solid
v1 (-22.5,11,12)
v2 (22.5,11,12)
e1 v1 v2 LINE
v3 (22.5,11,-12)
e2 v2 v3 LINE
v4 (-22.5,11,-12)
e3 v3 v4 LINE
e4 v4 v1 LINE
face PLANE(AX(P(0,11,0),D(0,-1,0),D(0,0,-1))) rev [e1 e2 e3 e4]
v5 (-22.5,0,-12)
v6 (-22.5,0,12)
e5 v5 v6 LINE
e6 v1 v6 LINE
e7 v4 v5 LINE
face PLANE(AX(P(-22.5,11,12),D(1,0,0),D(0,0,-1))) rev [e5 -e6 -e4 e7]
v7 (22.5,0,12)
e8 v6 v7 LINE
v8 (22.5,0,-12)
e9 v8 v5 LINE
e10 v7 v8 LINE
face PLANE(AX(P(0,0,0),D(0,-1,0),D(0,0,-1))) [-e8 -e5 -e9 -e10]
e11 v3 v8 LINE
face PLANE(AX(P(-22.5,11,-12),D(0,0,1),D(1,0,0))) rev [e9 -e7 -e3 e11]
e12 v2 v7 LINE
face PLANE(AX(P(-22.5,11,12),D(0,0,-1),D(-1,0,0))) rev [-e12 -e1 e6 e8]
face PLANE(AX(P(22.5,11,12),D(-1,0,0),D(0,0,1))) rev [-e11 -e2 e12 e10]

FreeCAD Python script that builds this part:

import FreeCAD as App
import Part
import Sketcher

V = App.Vector

doc = App.newDocument("Part")
body = doc.addObject("PartDesign::Body", "Body")

# Sketch on XZ plane
sketch1 = body.newObject("Sketcher::SketchObject", "Sketch")
sketch1.AttachmentSupport = (doc.getObject("XZ_Plane"), [""])
sketch1.MapMode = "FlatFace"
sketch1.addGeometry([
    Part.LineSegment(V(-22, -12, 0), V(-22, 12, 0)),
    Part.LineSegment(V(-22, 12, 0), V(22, 12, 0)),
    Part.LineSegment(V(22, 12, 0), V(22, -12, 0)),
    Part.LineSegment(V(22, -12, 0), V(-22, -12, 0)),
], False)
sketch1.addConstraint([
    Sketcher.Constraint("Coincident", 0, 2, 1, 1),
    Sketcher.Constraint("Coincident", 1, 2, 2, 1),
    Sketcher.Constraint("Coincident", 2, 2, 3, 1),
    Sketcher.Constraint("Coincident", 3, 2, 0, 1),
    Sketcher.Constraint("Vertical", 0),
    Sketcher.Constraint("Horizontal", 1),
    Sketcher.Constraint("Vertical", 2),
    Sketcher.Constraint("Horizontal", 3),
    Sketcher.Constraint("Symmetric", 0, 2, 2, 2, -1, 1),
    Sketcher.Constraint("DistanceX", 1, 1, 1, 2, 45.0),
    Sketcher.Constraint("DistanceY", 0, 1, 0, 2, 24.0),
])
pad1 = body.newObject("PartDesign::Pad", "Pad")
pad1.Profile = sketch1
pad1.Length = 11
pad1.Reversed = True

doc.recompute()
